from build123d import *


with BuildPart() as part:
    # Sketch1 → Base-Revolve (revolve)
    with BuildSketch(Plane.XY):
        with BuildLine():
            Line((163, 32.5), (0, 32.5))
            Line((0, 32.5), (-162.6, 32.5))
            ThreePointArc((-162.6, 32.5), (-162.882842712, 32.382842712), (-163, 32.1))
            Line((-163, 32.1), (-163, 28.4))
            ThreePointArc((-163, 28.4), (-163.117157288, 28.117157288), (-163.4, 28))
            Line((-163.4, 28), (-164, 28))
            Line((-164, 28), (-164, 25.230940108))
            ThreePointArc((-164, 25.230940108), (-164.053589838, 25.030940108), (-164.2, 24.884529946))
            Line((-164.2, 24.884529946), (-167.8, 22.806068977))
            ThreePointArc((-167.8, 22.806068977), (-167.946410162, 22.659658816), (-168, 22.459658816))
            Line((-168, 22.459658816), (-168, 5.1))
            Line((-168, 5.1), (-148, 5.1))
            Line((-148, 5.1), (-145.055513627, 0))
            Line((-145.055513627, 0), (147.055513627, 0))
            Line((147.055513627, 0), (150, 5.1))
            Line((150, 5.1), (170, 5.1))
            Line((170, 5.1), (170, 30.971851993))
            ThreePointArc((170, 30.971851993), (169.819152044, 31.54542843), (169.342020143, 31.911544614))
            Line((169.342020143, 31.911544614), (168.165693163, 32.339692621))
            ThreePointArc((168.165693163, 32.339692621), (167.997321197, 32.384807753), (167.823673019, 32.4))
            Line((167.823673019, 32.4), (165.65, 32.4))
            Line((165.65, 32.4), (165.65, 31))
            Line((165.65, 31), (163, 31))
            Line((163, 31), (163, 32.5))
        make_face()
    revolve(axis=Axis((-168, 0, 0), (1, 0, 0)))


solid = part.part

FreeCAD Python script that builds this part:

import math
import FreeCAD as App
import Part
import Sketcher
from FreeCAD import Vector
Q = App.Units.Quantity

doc = App.newDocument("Part")
body = doc.addObject("PartDesign::Body", "Body")

sketch1 = doc.addObject("Sketcher::SketchObject", "Sketch")
body.addObject(sketch1)
sketch1.AttachmentSupport = (doc.XY_Plane, [""])
sketch1.MapMode = "FlatFace"
sketch1.addGeometry([
    Part.LineSegment(Vector(163, 32.5, 0), Vector(-162.6, 32.5, 0)),
    Part.ArcOfCircle(Part.Circle(Vector(-162.6, 32.1, 0), Vector(0, 0, 1), 0.4), math.radians(90), math.radians(180)),
    Part.LineSegment(Vector(-163, 32.1, 0), Vector(-163, 28.4, 0)),
    Part.ArcOfCircle(Part.Circle(Vector(-163.4, 28.4, 0), Vector(0, 0, 1), 0.4), math.radians(-90), math.radians(0)),
    Part.LineSegment(Vector(-163.4, 28, 0), Vector(-164, 28, 0)),
    Part.LineSegment(Vector(-164, 28, 0), Vector(-164, 25.23, 0)),
    Part.ArcOfCircle(Part.Circle(Vector(-164.4, 25.23, 0), Vector(0, 0, 1), 0.4), math.radians(-60), math.radians(0)),
    Part.LineSegment(Vector(-164.2, 24.88, 0), Vector(-167.8, 22.81, 0)),
    Part.ArcOfCircle(Part.Circle(Vector(-167.6, 22.46, 0), Vector(0, 0, 1), 0.4), math.radians(120), math.radians(180)),
    Part.LineSegment(Vector(-168, 22.46, 0), Vector(-168, 5.1, 0)),
    Part.LineSegment(Vector(-168, 5.1, 0), Vector(-148, 5.1, 0)),
    Part.LineSegment(Vector(-148, 5.1, 0), Vector(-145.06, 0, 0)),
    Part.LineSegment(Vector(-145.06, 0, 0), Vector(147.06, 0, 0)),
    Part.LineSegment(Vector(147.06, 0, 0), Vector(150, 5.1, 0)),
    Part.LineSegment(Vector(150, 5.1, 0), Vector(170, 5.1, 0)),
    Part.LineSegment(Vector(170, 5.1, 0), Vector(170, 30.97, 0)),
    Part.ArcOfCircle(Part.Circle(Vector(169, 30.97, 0), Vector(0, 0, 1), 1), math.radians(0), math.radians(70)),
    Part.LineSegment(Vector(169.34, 31.91, 0), Vector(168.17, 32.34, 0)),
    Part.ArcOfCircle(Part.Circle(Vector(167.82, 31.4, 0), Vector(0, 0, 1), 1), math.radians(70), math.radians(90)),
    Part.LineSegment(Vector(167.82, 32.4, 0), Vector(165.65, 32.4, 0)),
    Part.LineSegment(Vector(165.65, 32.4, 0), Vector(165.65, 31, 0)),
    Part.LineSegment(Vector(165.65, 31, 0), Vector(163, 31, 0)),
    Part.LineSegment(Vector(163, 31, 0), Vector(163, 32.5, 0)),
], False)
sketch1.addConstraint([
    Sketcher.Constraint("Tangent", 0, 2, 1, 1),
    Sketcher.Constraint("Tangent", 1, 2, 2, 1),
    Sketcher.Constraint("Tangent", 2, 2, 3, 2),
    Sketcher.Constraint("Tangent", 3, 1, 4, 1),
    Sketcher.Constraint("Coincident", 4, 2, 5, 1),
    Sketcher.Constraint("Tangent", 5, 2, 6, 2),
    Sketcher.Constraint("Tangent", 6, 1, 7, 1),
    Sketcher.Constraint("Tangent", 7, 2, 8, 1),
    Sketcher.Constraint("Tangent", 8, 2, 9, 1),
    Sketcher.Constraint("Coincident", 9, 2, 10, 1),
    Sketcher.Constraint("Coincident", 10, 2, 11, 1),
    Sketcher.Constraint("Coincident", 11, 2, 12, 1),
    Sketcher.Constraint("Coincident", 12, 2, 13, 1),
    Sketcher.Constraint("Coincident", 13, 2, 14, 1),
    Sketcher.Constraint("Coincident", 14, 2, 15, 1),
    Sketcher.Constraint("Tangent", 15, 2, 16, 1),
    Sketcher.Constraint("Tangent", 16, 2, 17, 1),
    Sketcher.Constraint("Tangent", 17, 2, 18, 1),
    Sketcher.Constraint("Tangent", 18, 2, 19, 1),
    Sketcher.Constraint("Coincident", 19, 2, 20, 1),
    Sketcher.Constraint("Coincident", 20, 2, 21, 1),
    Sketcher.Constraint("Coincident", 21, 2, 22, 1),
    Sketcher.Constraint("Coincident", 22, 2, 0, 1),
    Sketcher.Constraint("Horizontal", 0),
    Sketcher.Constraint("Vertical", 2),
    Sketcher.Constraint("Horizontal", 4),
    Sketcher.Constraint("Vertical", 5),
    Sketcher.Constraint("Vertical", 9),
    Sketcher.Constraint("Horizontal", 10),
    Sketcher.Constraint("Horizontal", 12),
    Sketcher.Constraint("Horizontal", 14),
    Sketcher.Constraint("Vertical", 15),
    Sketcher.Constraint("Horizontal", 19),
    Sketcher.Constraint("Vertical", 20),
    Sketcher.Constraint("Horizontal", 21),
    Sketcher.Constraint("Vertical", 22),
    Sketcher.Constraint("Equal", 1, 3),
    Sketcher.Constraint("Equal", 3, 6),
    Sketcher.Constraint("Equal", 6, 8),
    Sketcher.Constraint("Equal", 16, 18),
    Sketcher.Constraint("PointOnObject", 11, 2, -1),
    Sketcher.Constraint("Perpendicular", 7, 11),
    Sketcher.Constraint("Horizontal", 10, 2, 13, 2),
    Sketcher.Constraint("Equal", 10, 14),
    Sketcher.Constraint("Equal", 11, 13),
    Sketcher.Constraint("Radius", 16, 1.0),
    Sketcher.Constraint("Radius", 1, 0.4),
    Sketcher.Constraint("DistanceX", 10, 1, 10, 2, 20.0),
    Sketcher.Constraint("Angle", 7, Q("-150 deg")),
    Sketcher.Constraint("Angle", 17, Q("160 deg")),
    Sketcher.Constraint("DistanceX", 0, 2, 0, 1, 325.6),
    Sketcher.Constraint("DistanceX", 4, 2, 4, 1, 0.6),
    Sketcher.Constraint("DistanceY", 2, 2, 2, 1, 3.7),
    Sketcher.Constraint("DistanceY", 20, 2, 20, 1, 1.4),
    Sketcher.Constraint("DistanceY", 22, 1, 22, 2, 1.5),
    Sketcher.Constraint("DistanceX", -1, 1, 16, 3, 169.0),
    Sketcher.Constraint("DistanceX", 1, 2, -1, 1, 163.0),
    Sketcher.Constraint("DistanceY", -1, 1, 3, 1, 28.0),
    Sketcher.Constraint("DistanceX", 8, 2, -1, 1, 168.0),
    Sketcher.Constraint("DistanceX", 21, 2, 21, 1, 2.65),
    Sketcher.Constraint("DistanceY", -1, 1, 9, 2, 5.1),
    Sketcher.Constraint("DistanceY", 5, 2, 5, 1, 2.76906),
    Sketcher.Constraint("DistanceY", 15, 1, 15, 2, 25.871852),
])
revolution = doc.addObject("PartDesign::Revolution", "Revolution")
body.addObject(revolution)
revolution.Profile = sketch1
revolution.ReferenceAxis = (sketch1, ["H_Axis"])
revolution.Angle = 360

doc.recompute()
